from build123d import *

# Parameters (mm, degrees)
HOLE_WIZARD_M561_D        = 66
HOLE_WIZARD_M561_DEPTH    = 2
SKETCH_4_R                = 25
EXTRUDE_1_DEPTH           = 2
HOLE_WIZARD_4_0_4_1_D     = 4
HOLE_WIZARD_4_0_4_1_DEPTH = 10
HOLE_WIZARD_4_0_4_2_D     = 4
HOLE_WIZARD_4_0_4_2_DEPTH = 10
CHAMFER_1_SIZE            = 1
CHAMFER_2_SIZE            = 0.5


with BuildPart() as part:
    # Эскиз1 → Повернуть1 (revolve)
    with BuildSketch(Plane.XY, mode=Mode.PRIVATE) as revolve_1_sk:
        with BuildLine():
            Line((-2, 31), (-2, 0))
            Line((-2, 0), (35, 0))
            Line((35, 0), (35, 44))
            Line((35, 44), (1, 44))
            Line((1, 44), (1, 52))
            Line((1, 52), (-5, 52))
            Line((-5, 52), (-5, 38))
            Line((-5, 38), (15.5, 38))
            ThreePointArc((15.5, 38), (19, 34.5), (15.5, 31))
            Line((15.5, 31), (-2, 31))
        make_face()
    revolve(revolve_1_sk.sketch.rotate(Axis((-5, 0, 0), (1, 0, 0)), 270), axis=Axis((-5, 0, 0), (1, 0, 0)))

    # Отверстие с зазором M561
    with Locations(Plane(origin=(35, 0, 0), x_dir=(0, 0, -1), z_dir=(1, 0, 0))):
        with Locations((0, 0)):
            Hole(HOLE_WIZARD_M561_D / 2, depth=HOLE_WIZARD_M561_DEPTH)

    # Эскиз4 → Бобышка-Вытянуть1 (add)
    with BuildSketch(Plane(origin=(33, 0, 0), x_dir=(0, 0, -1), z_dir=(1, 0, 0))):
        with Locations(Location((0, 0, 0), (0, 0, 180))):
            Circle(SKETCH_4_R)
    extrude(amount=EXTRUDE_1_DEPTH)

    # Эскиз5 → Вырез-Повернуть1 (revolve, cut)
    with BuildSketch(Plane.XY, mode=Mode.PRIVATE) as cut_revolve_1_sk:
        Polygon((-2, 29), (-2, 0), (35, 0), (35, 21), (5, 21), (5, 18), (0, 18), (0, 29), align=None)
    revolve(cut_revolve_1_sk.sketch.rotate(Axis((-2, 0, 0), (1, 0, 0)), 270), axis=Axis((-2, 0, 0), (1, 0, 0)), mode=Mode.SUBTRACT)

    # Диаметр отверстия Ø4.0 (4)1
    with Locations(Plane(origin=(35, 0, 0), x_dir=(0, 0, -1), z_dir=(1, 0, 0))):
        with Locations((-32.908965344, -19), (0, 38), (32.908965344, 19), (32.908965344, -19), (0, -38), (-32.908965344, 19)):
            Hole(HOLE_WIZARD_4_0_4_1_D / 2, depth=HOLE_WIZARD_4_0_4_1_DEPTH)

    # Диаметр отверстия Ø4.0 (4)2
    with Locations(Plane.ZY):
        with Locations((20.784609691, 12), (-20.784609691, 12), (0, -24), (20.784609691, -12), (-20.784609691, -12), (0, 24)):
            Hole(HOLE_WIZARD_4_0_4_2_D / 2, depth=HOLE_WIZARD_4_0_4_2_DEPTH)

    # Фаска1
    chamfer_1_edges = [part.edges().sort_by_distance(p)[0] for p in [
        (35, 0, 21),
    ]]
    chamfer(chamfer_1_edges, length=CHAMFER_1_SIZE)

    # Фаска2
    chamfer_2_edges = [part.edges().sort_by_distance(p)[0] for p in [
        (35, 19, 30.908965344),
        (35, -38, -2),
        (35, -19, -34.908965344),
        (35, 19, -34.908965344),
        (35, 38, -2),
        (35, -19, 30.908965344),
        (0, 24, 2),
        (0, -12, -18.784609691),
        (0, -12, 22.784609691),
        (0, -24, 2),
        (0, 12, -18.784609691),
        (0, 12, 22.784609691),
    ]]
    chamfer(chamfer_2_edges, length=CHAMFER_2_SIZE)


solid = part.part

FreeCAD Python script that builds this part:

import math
import FreeCAD as App
import Part
import Sketcher

V = App.Vector


def edges_at(feature, points):
    """Names of the edges that pass closest to the given points."""
    edges = feature.Shape.Edges
    near = lambda p: min(range(len(edges)), key=lambda i: edges[i].distToShape(Part.Vertex(*p))[0])
    return sorted({f"Edge{near(p) + 1}" for p in points})


def add_polygon(sketch, points):
    """Adds a closed chain of lines whose ends are joined by coincident constraints."""
    first, n = sketch.GeometryCount, len(points)
    for a, b in zip(points, points[1:] + points[:1]):
        sketch.addGeometry(Part.LineSegment(App.Vector(*a, 0), App.Vector(*b, 0)), False)
    for i in range(n):
        sketch.addConstraint(Sketcher.Constraint("Coincident", first + i, 2, first + (i + 1) % n, 1))

doc = App.newDocument("Part")
body = doc.addObject("PartDesign::Body", "Body")

# Sketch on XY plane
sketch1 = body.newObject("Sketcher::SketchObject", "Sketch")
sketch1.AttachmentSupport = (doc.getObject("XY_Plane"), [""])
sketch1.MapMode = "FlatFace"
sketch1.addGeometry([
    Part.LineSegment(V(-2, 31, 0), V(-2, 0, 0)),  # 0
    Part.LineSegment(V(-2, 0, 0), V(35, 0, 0)),  # 1
    Part.LineSegment(V(35, 0, 0), V(35, 44, 0)),  # 2
    Part.LineSegment(V(35, 44, 0), V(1, 44, 0)),  # 3
    Part.LineSegment(V(1, 44, 0), V(1, 52, 0)),  # 4
    Part.LineSegment(V(1, 52, 0), V(-5, 52, 0)),  # 5
    Part.LineSegment(V(-5, 52, 0), V(-5, 38, 0)),  # 6
    Part.LineSegment(V(-5, 38, 0), V(15.5, 38, 0)),  # 7
    Part.ArcOfCircle(Part.Circle(V(15.5, 34.5, 0), V(0, 0, 1), 3.5), math.radians(-90), math.radians(90)),  # 8
    Part.LineSegment(V(15.5, 31, 0), V(-2, 31, 0)),  # 9
], False)
sketch1.addConstraint([
    Sketcher.Constraint("Coincident", 0, 2, 1, 1),
    Sketcher.Constraint("Coincident", 1, 2, 2, 1),
    Sketcher.Constraint("Coincident", 2, 2, 3, 1),
    Sketcher.Constraint("Coincident", 3, 2, 4, 1),
    Sketcher.Constraint("Coincident", 4, 2, 5, 1),
    Sketcher.Constraint("Coincident", 5, 2, 6, 1),
    Sketcher.Constraint("Coincident", 6, 2, 7, 1),
    Sketcher.Constraint("Tangent", 7, 2, 8, 2),
    Sketcher.Constraint("Tangent", 8, 1, 9, 1),
    Sketcher.Constraint("Coincident", 9, 2, 0, 1),
    Sketcher.Constraint("Vertical", 0),
    Sketcher.Constraint("Horizontal", 1),
    Sketcher.Constraint("Vertical", 2),
    Sketcher.Constraint("Horizontal", 3),
    Sketcher.Constraint("Vertical", 4),
    Sketcher.Constraint("Horizontal", 5),
    Sketcher.Constraint("Vertical", 6),
    Sketcher.Constraint("Horizontal", 7),
    Sketcher.Constraint("Horizontal", 9),
    Sketcher.Constraint("PointOnObject", 0, 2, -1),
    Sketcher.Constraint("Radius", 8, 3.5),
    Sketcher.Constraint("DistanceX", 1, 1, 1, 2, 37.0),
    Sketcher.Constraint("DistanceX", 3, 2, 3, 1, 34.0),
    Sketcher.Constraint("DistanceX", 5, 2, 5, 1, 6.0),
    Sketcher.Constraint("DistanceY", 0, 2, 0, 1, 31.0),
    Sketcher.Constraint("DistanceY", 2, 1, 2, 2, 44.0),
    Sketcher.Constraint("DistanceY", 4, 1, 4, 2, 8.0),
    Sketcher.Constraint("DistanceX", 7, 1, 7, 2, 20.5),
    Sketcher.Constraint("DistanceX", 0, 2, -1, 1, 2.0),
])
revolution = body.newObject("PartDesign::Revolution", "Revolution")
revolution.Profile = sketch1
revolution.ReferenceAxis = (sketch1, ["H_Axis"])
revolution.Angle = 360

# Sketch on YZ plane
sketch2 = body.newObject("Sketcher::SketchObject", "Sketch001")
sketch2.AttachmentSupport = (doc.getObject("YZ_Plane"), [""])
sketch2.MapMode = "FlatFace"
sketch2.AttachmentOffset = App.Placement(V(0, 0, 35), App.Rotation())
sketch2.addGeometry(Part.Circle(V(0, 0, 0), V(0, 0, 1), 33), False)
sketch2.addConstraint([
    Sketcher.Constraint("Coincident", 0, 3, -1, 1),
    Sketcher.Constraint("Diameter", 0, 66.0),
])
doc.recompute()
hole = body.newObject("PartDesign::Hole", "Hole")
hole.Profile = sketch2
hole.ThreadType = "None"
hole.Diameter = 66
hole.DepthType = "Dimension"
hole.Depth = 2
hole.DrillPoint = "Flat"

# Sketch on YZ plane
sketch3 = body.newObject("Sketcher::SketchObject", "Sketch002")
sketch3.AttachmentSupport = (doc.getObject("YZ_Plane"), [""])
sketch3.MapMode = "FlatFace"
sketch3.AttachmentOffset = App.Placement(V(0, 0, 33), App.Rotation())
sketch3.addGeometry(Part.Circle(V(0, 0, 0), V(0, 0, 1), 25), False)
sketch3.addConstraint([
    Sketcher.Constraint("Coincident", 0, 3, -1, 1),
    Sketcher.Constraint("Diameter", 0, 50.0),
])
pad1 = body.newObject("PartDesign::Pad", "Pad")
pad1.Profile = sketch3
pad1.Length = 2

# Sketch on XY plane
sketch4 = body.newObject("Sketcher::SketchObject", "Sketch003")
sketch4.AttachmentSupport = (doc.getObject("XY_Plane"), [""])
sketch4.MapMode = "FlatFace"
add_polygon(sketch4, [(-2, 29), (-2, 0), (35, 0), (35, 21), (5, 21), (5, 18), (0, 18), (0, 29)])  # lines 0-7
sketch4.addConstraint([
    Sketcher.Constraint("Vertical", 0),
    Sketcher.Constraint("Horizontal", 1),
    Sketcher.Constraint("Vertical", 2),
    Sketcher.Constraint("Horizontal", 3),
    Sketcher.Constraint("Vertical", 4),
    Sketcher.Constraint("Horizontal", 5),
    Sketcher.Constraint("Vertical", 6),
    Sketcher.Constraint("Horizontal", 7),
    Sketcher.Constraint("PointOnObject", 0, 2, -1),
    Sketcher.Constraint("PointOnObject", 5, 2, -2),
    Sketcher.Constraint("DistanceX", 1, 1, 1, 2, 37.0),
    Sketcher.Constraint("DistanceX", 3, 2, 3, 1, 30.0),
    Sketcher.Constraint("DistanceX", 5, 2, 5, 1, 5.0),
    Sketcher.Constraint("DistanceY", 0, 2, 0, 1, 29.0),
    Sketcher.Constraint("DistanceY", 2, 1, 2, 2, 21.0),
    Sketcher.Constraint("DistanceY", 4, 2, 4, 1, 3.0),
])
groove = body.newObject("PartDesign::Groove", "Groove")
groove.Profile = sketch4
groove.ReferenceAxis = (sketch4, ["H_Axis"])
groove.Angle = 360

# Sketch on YZ plane
sketch5 = body.newObject("Sketcher::SketchObject", "Sketch004")
sketch5.AttachmentSupport = (doc.getObject("YZ_Plane"), [""])
sketch5.MapMode = "FlatFace"
sketch5.AttachmentOffset = App.Placement(V(0, 0, 35), App.Rotation())
sketch5.addGeometry([
    Part.Circle(V(-19, 32.9, 0), V(0, 0, 1), 2),  # 0
    Part.Circle(V(38, 0, 0), V(0, 0, 1), 2),  # 1
    Part.Circle(V(19, -32.9, 0), V(0, 0, 1), 2),  # 2
    Part.Circle(V(-19, -32.9, 0), V(0, 0, 1), 2),  # 3
    Part.Circle(V(-38, 0, 0), V(0, 0, 1), 2),  # 4
    Part.Circle(V(19, 32.9, 0), V(0, 0, 1), 2),  # 5
], False)
sketch5.addConstraint([
    Sketcher.Constraint("Equal", 0, 1),
    Sketcher.Constraint("Equal", 1, 2),
    Sketcher.Constraint("Equal", 2, 3),
    Sketcher.Constraint("Equal", 3, 4),
    Sketcher.Constraint("Equal", 4, 5),
    Sketcher.Constraint("Symmetric", 0, 3, 2, 3, -1, 1),
    Sketcher.Constraint("Symmetric", 1, 3, 4, 3, -1, 1),
    Sketcher.Constraint("Symmetric", 3, 3, 5, 3, -1, 1),
    Sketcher.Constraint("Symmetric", 2, 3, 3, 3, -2),
    Sketcher.Constraint("PointOnObject", 1, 3, -1),
    Sketcher.Constraint("Diameter", 0, 4.0),
    Sketcher.Constraint("DistanceX", 0, 3, -1, 1, 19.0),
    Sketcher.Constraint("DistanceX", -1, 1, 1, 3, 38.0),
    Sketcher.Constraint("DistanceY", 2, 3, 0, 3, 65.817931),
])
doc.recompute()
hole2 = body.newObject("PartDesign::Hole", "Hole001")
hole2.Profile = sketch5
hole2.ThreadType = "None"
hole2.Diameter = 4
hole2.DepthType = "Dimension"
hole2.Depth = 10
hole2.DrillPoint = "Flat"

# Sketch on YZ plane
sketch6 = body.newObject("Sketcher::SketchObject", "Sketch005")
sketch6.AttachmentSupport = (doc.getObject("YZ_Plane"), [""])
sketch6.MapMode = "FlatFace"
sketch6.addGeometry([
    Part.Circle(V(12, 20.8, 0), V(0, 0, 1), 2),  # 0
    Part.Circle(V(12, -20.8, 0), V(0, 0, 1), 2),  # 1
    Part.Circle(V(-24, 0, 0), V(0, 0, 1), 2),  # 2
    Part.Circle(V(-12, 20.8, 0), V(0, 0, 1), 2),  # 3
    Part.Circle(V(-12, -20.8, 0), V(0, 0, 1), 2),  # 4
    Part.Circle(V(24, 0, 0), V(0, 0, 1), 2),  # 5
], False)
sketch6.addConstraint([
    Sketcher.Constraint("Equal", 0, 1),
    Sketcher.Constraint("Equal", 1, 2),
    Sketcher.Constraint("Equal", 2, 3),
    Sketcher.Constraint("Equal", 3, 4),
    Sketcher.Constraint("Equal", 4, 5),
    Sketcher.Constraint("Symmetric", 1, 3, 3, 3, -1, 1),
    Sketcher.Constraint("Symmetric", 0, 3, 4, 3, -1, 1),
    Sketcher.Constraint("Symmetric", 2, 3, 5, 3, -1, 1),
    Sketcher.Constraint("Symmetric", 0, 3, 3, 3, -2),
    Sketcher.Constraint("PointOnObject", 2, 3, -1),
    Sketcher.Constraint("Diameter", 0, 4.0),
    Sketcher.Constraint("DistanceX", -1, 1, 0, 3, 12.0),
    Sketcher.Constraint("DistanceX", 2, 3, -1, 1, 24.0),
    Sketcher.Constraint("DistanceY", -1, 1, 0, 3, 20.78461),
])
doc.recompute()
hole3 = body.newObject("PartDesign::Hole", "Hole002")
hole3.Profile = sketch6
hole3.ThreadType = "None"
hole3.Diameter = 4
hole3.DepthType = "Dimension"
hole3.Depth = 10
hole3.DrillPoint = "Flat"
hole3.Reversed = True
doc.recompute()

chamfer = body.newObject("PartDesign::Chamfer", "Chamfer")
chamfer.Base = (hole3, edges_at(hole3, [(35, 0, 21)]))
chamfer.Size = 1
doc.recompute()

chamfer2 = body.newObject("PartDesign::Chamfer", "Chamfer001")
chamfer2.Base = (chamfer, edges_at(chamfer, [
    (35, 19, 30.909),
    (35, -38, -2),
    (35, -19, -34.909),
    (35, 19, -34.909),
    (35, 38, -2),
    (35, -19, 30.909),
    (0, 24, 2),
    (0, -12, -18.785),
    (0, -12, 22.785),
    (0, -24, 2),
    (0, 12, -18.785),
    (0, 12, 22.785),
]))
chamfer2.Size = 0.5

doc.recompute()
